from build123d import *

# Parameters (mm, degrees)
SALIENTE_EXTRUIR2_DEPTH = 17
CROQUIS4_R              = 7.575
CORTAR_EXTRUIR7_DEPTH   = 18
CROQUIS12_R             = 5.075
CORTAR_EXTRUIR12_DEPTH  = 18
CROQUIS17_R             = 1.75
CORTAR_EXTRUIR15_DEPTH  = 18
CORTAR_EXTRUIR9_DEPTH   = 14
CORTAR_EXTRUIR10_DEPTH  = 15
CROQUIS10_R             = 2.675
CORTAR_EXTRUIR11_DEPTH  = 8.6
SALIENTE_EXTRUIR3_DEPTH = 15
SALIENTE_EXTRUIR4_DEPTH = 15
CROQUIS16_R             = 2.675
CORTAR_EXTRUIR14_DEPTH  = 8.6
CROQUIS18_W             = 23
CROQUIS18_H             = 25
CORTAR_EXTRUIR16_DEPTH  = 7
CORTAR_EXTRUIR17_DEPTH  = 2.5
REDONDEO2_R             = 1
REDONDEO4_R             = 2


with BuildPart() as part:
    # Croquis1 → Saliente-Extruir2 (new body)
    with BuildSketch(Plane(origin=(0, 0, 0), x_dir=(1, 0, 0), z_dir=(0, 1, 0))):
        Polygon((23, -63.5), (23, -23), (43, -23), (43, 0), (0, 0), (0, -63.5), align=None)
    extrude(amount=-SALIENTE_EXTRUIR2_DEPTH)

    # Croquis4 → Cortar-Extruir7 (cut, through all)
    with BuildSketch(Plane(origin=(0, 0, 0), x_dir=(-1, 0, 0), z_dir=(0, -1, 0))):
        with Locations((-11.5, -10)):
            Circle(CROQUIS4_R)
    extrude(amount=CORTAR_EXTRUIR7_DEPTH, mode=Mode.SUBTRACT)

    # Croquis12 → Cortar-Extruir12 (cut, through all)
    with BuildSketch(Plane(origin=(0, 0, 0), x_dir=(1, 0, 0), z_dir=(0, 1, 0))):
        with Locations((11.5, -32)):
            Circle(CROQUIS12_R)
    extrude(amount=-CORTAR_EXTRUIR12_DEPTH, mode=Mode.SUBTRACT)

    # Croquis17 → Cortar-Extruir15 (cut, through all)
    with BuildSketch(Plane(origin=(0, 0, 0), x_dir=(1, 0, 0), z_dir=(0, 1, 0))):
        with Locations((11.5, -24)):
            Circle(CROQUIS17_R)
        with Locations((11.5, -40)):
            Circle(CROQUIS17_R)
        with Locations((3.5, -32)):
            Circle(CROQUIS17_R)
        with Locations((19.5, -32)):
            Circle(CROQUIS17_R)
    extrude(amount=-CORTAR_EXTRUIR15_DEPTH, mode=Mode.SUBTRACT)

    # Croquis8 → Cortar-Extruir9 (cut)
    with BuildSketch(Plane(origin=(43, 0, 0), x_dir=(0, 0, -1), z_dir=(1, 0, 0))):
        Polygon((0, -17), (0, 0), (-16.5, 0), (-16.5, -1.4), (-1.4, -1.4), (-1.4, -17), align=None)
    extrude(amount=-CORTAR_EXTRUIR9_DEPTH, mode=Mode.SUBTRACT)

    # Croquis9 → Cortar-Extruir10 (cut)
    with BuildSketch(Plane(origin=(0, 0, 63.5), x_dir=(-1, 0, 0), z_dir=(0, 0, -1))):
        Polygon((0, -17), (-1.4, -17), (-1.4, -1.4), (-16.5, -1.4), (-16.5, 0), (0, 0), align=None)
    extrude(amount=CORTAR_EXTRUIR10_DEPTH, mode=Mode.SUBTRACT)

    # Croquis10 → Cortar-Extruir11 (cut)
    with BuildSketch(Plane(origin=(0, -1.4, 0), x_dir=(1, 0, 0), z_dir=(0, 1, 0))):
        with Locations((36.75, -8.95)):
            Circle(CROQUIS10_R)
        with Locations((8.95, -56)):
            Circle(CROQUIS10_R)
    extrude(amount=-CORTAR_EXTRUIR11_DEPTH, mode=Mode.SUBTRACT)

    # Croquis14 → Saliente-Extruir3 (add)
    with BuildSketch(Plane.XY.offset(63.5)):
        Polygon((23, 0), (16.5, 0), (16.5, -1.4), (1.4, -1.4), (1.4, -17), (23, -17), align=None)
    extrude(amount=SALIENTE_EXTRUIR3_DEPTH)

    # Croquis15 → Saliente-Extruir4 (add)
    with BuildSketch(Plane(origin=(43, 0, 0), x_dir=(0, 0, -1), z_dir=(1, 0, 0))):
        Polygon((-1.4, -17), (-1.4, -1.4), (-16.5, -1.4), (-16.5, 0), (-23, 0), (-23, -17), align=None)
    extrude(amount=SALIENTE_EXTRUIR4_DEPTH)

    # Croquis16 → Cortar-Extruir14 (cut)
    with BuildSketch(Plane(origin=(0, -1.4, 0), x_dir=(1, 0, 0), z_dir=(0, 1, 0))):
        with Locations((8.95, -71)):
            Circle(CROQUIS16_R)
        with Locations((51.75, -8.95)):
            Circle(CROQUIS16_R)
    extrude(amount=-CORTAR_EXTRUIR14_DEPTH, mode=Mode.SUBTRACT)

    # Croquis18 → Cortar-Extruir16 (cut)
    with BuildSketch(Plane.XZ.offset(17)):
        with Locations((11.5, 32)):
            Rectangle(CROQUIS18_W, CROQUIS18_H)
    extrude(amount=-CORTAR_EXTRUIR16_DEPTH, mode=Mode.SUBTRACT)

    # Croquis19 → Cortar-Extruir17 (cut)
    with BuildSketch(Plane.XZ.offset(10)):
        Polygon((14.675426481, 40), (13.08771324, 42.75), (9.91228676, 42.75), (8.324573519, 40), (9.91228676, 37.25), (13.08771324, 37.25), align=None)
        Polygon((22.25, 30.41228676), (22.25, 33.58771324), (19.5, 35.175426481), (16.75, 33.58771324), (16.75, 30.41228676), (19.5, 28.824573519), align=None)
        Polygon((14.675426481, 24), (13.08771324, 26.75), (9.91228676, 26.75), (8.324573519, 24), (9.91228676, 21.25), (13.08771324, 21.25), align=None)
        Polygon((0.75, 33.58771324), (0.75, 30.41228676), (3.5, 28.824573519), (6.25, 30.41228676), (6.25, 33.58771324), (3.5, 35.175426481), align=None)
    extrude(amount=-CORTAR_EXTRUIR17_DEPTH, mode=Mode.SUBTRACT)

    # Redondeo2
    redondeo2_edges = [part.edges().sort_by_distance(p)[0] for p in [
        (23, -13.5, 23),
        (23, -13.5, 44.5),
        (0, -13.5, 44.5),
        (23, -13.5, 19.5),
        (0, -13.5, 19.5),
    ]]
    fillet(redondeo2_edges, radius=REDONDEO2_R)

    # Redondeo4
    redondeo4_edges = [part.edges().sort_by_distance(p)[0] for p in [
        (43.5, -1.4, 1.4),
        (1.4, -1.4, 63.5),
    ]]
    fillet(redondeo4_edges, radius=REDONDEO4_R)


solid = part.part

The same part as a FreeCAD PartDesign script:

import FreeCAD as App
import Part
import Sketcher

V = App.Vector
Q = App.Units.Quantity


def edges_at(feature, points):
    """Names of the edges that pass closest to the given points."""
    edges = feature.Shape.Edges
    near = lambda p: min(range(len(edges)), key=lambda i: edges[i].distToShape(Part.Vertex(*p))[0])
    return sorted({f"Edge{near(p) + 1}" for p in points})


def add_polygon(sketch, points):
    """Adds a closed chain of lines whose ends are joined by coincident constraints."""
    first, n = sketch.GeometryCount, len(points)
    for a, b in zip(points, points[1:] + points[:1]):
        sketch.addGeometry(Part.LineSegment(App.Vector(*a, 0), App.Vector(*b, 0)), False)
    for i in range(n):
        sketch.addConstraint(Sketcher.Constraint("Coincident", first + i, 2, first + (i + 1) % n, 1))

doc = App.newDocument("Part")
body = doc.addObject("PartDesign::Body", "Body")

# Sketch on XZ plane
sketch1 = body.newObject("Sketcher::SketchObject", "Sketch")
sketch1.AttachmentSupport = (doc.getObject("XZ_Plane"), [""])
sketch1.MapMode = "FlatFace"
add_polygon(sketch1, [(23, 64), (23, 23), (43, 23), (43, 0), (0, 0), (0, 64)])  # lines 0-5
sketch1.addConstraint(Sketcher.Constraint("Vertical", 0))
sketch1.addConstraint(Sketcher.Constraint("Horizontal", 1))
sketch1.addConstraint(Sketcher.Constraint("Vertical", 2))
sketch1.addConstraint(Sketcher.Constraint("Horizontal", 3))
sketch1.addConstraint(Sketcher.Constraint("Vertical", 4))
sketch1.addConstraint(Sketcher.Constraint("Horizontal", 5))
sketch1.addConstraint(Sketcher.Constraint("Coincident", 3, 2, -1, 1))
sketch1.addConstraint(Sketcher.Constraint("Equal", 5, 2))
sketch1.addConstraint(Sketcher.Constraint("DistanceX", 1, 1, 1, 2, 20.0))
sketch1.addConstraint(Sketcher.Constraint("DistanceX", 3, 2, 3, 1, 43.0))
sketch1.addConstraint(Sketcher.Constraint("DistanceY", 0, 2, 0, 1, 40.5))
pad1 = body.newObject("PartDesign::Pad", "Pad")
pad1.Profile = sketch1
pad1.Length = 17

# Sketch on XZ plane
sketch2 = body.newObject("Sketcher::SketchObject", "Sketch001")
sketch2.AttachmentSupport = (doc.getObject("XZ_Plane"), [""])
sketch2.MapMode = "FlatFace"
sketch2.addGeometry(Part.Circle(V(12, 10, 0), V(0, 0, 1), 8), False)
sketch2.addConstraint(Sketcher.Constraint("Diameter", 0, 15.15))
sketch2.addConstraint(Sketcher.Constraint("DistanceY", -1, 1, 0, 3, 10.0))
sketch2.addConstraint(Sketcher.Constraint("DistanceX", -1, 1, 0, 3, 11.5))
pocket1 = body.newObject("PartDesign::Pocket", "Pocket")
pocket1.Profile = sketch2
pocket1.Type = "ThroughAll"
pocket1.Reversed = True

# Sketch on XZ plane
sketch3 = body.newObject("Sketcher::SketchObject", "Sketch002")
sketch3.AttachmentSupport = (doc.getObject("XZ_Plane"), [""])
sketch3.MapMode = "FlatFace"
sketch3.addGeometry(Part.Circle(V(12, 32, 0), V(0, 0, 1), 5), False)
sketch3.addConstraint(Sketcher.Constraint("Diameter", 0, 10.15))
sketch3.addConstraint(Sketcher.Constraint("DistanceY", -1, 1, 0, 3, 32.0))
sketch3.addConstraint(Sketcher.Constraint("DistanceX", -1, 1, 0, 3, 11.5))
pocket2 = body.newObject("PartDesign::Pocket", "Pocket001")
pocket2.Profile = sketch3
pocket2.Type = "ThroughAll"
pocket2.Reversed = True

# Sketch on XZ plane
sketch4 = body.newObject("Sketcher::SketchObject", "Sketch003")
sketch4.AttachmentSupport = (doc.getObject("XZ_Plane"), [""])
sketch4.MapMode = "FlatFace"
sketch4.addGeometry(Part.Circle(V(11.5, 24, 0), V(0, 0, 1), 1.8), False)
sketch4.addGeometry(Part.Circle(V(11.5, 40, 0), V(0, 0, 1), 1.8), False)
sketch4.addGeometry(Part.Circle(V(3.5, 32, 0), V(0, 0, 1), 1.8), False)
sketch4.addGeometry(Part.Circle(V(19.5, 32, 0), V(0, 0, 1), 1.8), False)
sketch4.addConstraint(Sketcher.Constraint("Equal", 0, 1))
sketch4.addConstraint(Sketcher.Constraint("Equal", 1, 2))
sketch4.addConstraint(Sketcher.Constraint("Equal", 2, 3))
sketch4.addConstraint(Sketcher.Constraint("Horizontal", 2, 3, 3, 3))
sketch4.addConstraint(Sketcher.Constraint("Vertical", 0, 3, 1, 3))
sketch4.addConstraint(Sketcher.Constraint("Diameter", 0, 3.5))
sketch4.addConstraint(Sketcher.Constraint("DistanceY", -1, 1, 0, 3, 24.0))
sketch4.addConstraint(Sketcher.Constraint("DistanceY", -1, 1, 1, 3, 40.0))
sketch4.addConstraint(Sketcher.Constraint("DistanceY", -1, 1, 2, 3, 32.0))
sketch4.addConstraint(Sketcher.Constraint("DistanceX", 2, 3, 0, 3, 8.0))
sketch4.addConstraint(Sketcher.Constraint("DistanceX", 0, 3, 3, 3, 8.0))
sketch4.addConstraint(Sketcher.Constraint("DistanceX", -1, 1, 0, 3, 11.5))
pocket3 = body.newObject("PartDesign::Pocket", "Pocket002")
pocket3.Profile = sketch4
pocket3.Type = "ThroughAll"
pocket3.Reversed = True

# Sketch on YZ plane
sketch5 = body.newObject("Sketcher::SketchObject", "Sketch004")
sketch5.AttachmentSupport = (doc.getObject("YZ_Plane"), [""])
sketch5.MapMode = "FlatFace"
sketch5.AttachmentOffset = App.Placement(V(0, 0, 43), App.Rotation())
add_polygon(sketch5, [(-17, 0), (0, 0), (0, 16.5), (-1.4, 16.5), (-1.4, 1.4), (-17, 1.4)])  # lines 0-5
sketch5.addConstraint(Sketcher.Constraint("Horizontal", 0))
sketch5.addConstraint(Sketcher.Constraint("Vertical", 1))
sketch5.addConstraint(Sketcher.Constraint("Horizontal", 2))
sketch5.addConstraint(Sketcher.Constraint("Vertical", 3))
sketch5.addConstraint(Sketcher.Constraint("Horizontal", 4))
sketch5.addConstraint(Sketcher.Constraint("Vertical", 5))
sketch5.addConstraint(Sketcher.Constraint("Coincident", 0, 2, -1, 1))
sketch5.addConstraint(Sketcher.Constraint("Equal", 2, 5))
sketch5.addConstraint(Sketcher.Constraint("DistanceX", 0, 1, 0, 2, 17.0))
sketch5.addConstraint(Sketcher.Constraint("DistanceX", 2, 2, 2, 1, 1.4))
sketch5.addConstraint(Sketcher.Constraint("DistanceY", 1, 1, 1, 2, 16.5))
pocket4 = body.newObject("PartDesign::Pocket", "Pocket003")
pocket4.Profile = sketch5
pocket4.Length = 14

# Sketch on XY plane
sketch6 = body.newObject("Sketcher::SketchObject", "Sketch005")
sketch6.AttachmentSupport = (doc.getObject("XY_Plane"), [""])
sketch6.MapMode = "FlatFace"
sketch6.AttachmentOffset = App.Placement(V(0, 0, 63.5), App.Rotation())
add_polygon(sketch6, [(1.4, -17), (0, -17), (0, 0), (16.5, 0), (16.5, -1.4), (1.4, -1.4)])  # lines 0-5
sketch6.addConstraint(Sketcher.Constraint("Horizontal", 0))
sketch6.addConstraint(Sketcher.Constraint("Vertical", 1))
sketch6.addConstraint(Sketcher.Constraint("Horizontal", 2))
sketch6.addConstraint(Sketcher.Constraint("Vertical", 3))
sketch6.addConstraint(Sketcher.Constraint("Horizontal", 4))
sketch6.addConstraint(Sketcher.Constraint("Vertical", 5))
sketch6.addConstraint(Sketcher.Constraint("Coincident", 1, 2, -1, 1))
sketch6.addConstraint(Sketcher.Constraint("Equal", 0, 3))
sketch6.addConstraint(Sketcher.Constraint("DistanceY", 1, 1, 1, 2, 17.0))
sketch6.addConstraint(Sketcher.Constraint("DistanceX", 0, 2, 0, 1, 1.4))
sketch6.addConstraint(Sketcher.Constraint("DistanceX", 2, 1, 2, 2, 16.5))
pocket5 = body.newObject("PartDesign::Pocket", "Pocket004")
pocket5.Profile = sketch6
pocket5.Length = 15

# Sketch on XZ plane
sketch7 = body.newObject("Sketcher::SketchObject", "Sketch006")
sketch7.AttachmentSupport = (doc.getObject("XZ_Plane"), [""])
sketch7.MapMode = "FlatFace"
sketch7.AttachmentOffset = App.Placement(V(0, 0, 1.4), App.Rotation())
sketch7.addGeometry(Part.Circle(V(36.8, 8.9, 0), V(0, 0, 1), 2.7), False)
sketch7.addGeometry(Part.Circle(V(8.9, 56, 0), V(0, 0, 1), 2.7), False)
sketch7.addConstraint(Sketcher.Constraint("Equal", 0, 1))
sketch7.addConstraint(Sketcher.Constraint("Diameter", 0, 5.35))
sketch7.addConstraint(Sketcher.Constraint("DistanceY", -1, 1, 1, 3, 56.0))
sketch7.addConstraint(Sketcher.Constraint("DistanceX", 1, 3, 0, 3, 27.8))
sketch7.addConstraint(Sketcher.Constraint("DistanceX", -1, 1, 0, 3, 36.75))
sketch7.addConstraint(Sketcher.Constraint("DistanceY", -1, 1, 0, 3, 8.95))
pocket6 = body.newObject("PartDesign::Pocket", "Pocket005")
pocket6.Profile = sketch7
pocket6.Length = 8.6
pocket6.Reversed = True

# Sketch on XY plane
sketch8 = body.newObject("Sketcher::SketchObject", "Sketch007")
sketch8.AttachmentSupport = (doc.getObject("XY_Plane"), [""])
sketch8.MapMode = "FlatFace"
sketch8.AttachmentOffset = App.Placement(V(0, 0, 63.5), App.Rotation())
add_polygon(sketch8, [(23, 0), (16.5, 0), (16.5, -1.4), (1.4, -1.4), (1.4, -17), (23, -17)])  # lines 0-5
sketch8.addConstraint(Sketcher.Constraint("Horizontal", 0))
sketch8.addConstraint(Sketcher.Constraint("Vertical", 1))
sketch8.addConstraint(Sketcher.Constraint("Horizontal", 2))
sketch8.addConstraint(Sketcher.Constraint("Vertical", 3))
sketch8.addConstraint(Sketcher.Constraint("Horizontal", 4))
sketch8.addConstraint(Sketcher.Constraint("Vertical", 5))
sketch8.addConstraint(Sketcher.Constraint("PointOnObject", 0, 2, -1))
sketch8.addConstraint(Sketcher.Constraint("DistanceY", 5, 1, 5, 2, 17.0))
sketch8.addConstraint(Sketcher.Constraint("DistanceX", 0, 2, 0, 1, 6.5))
sketch8.addConstraint(Sketcher.Constraint("DistanceX", 2, 2, 2, 1, 15.1))
sketch8.addConstraint(Sketcher.Constraint("DistanceY", 1, 2, 1, 1, 1.4))
sketch8.addConstraint(Sketcher.Constraint("DistanceX", -1, 1, 4, 2, 23.0))
pad2 = body.newObject("PartDesign::Pad", "Pad001")
pad2.Profile = sketch8
pad2.Length = 15

# Sketch on YZ plane
sketch9 = body.newObject("Sketcher::SketchObject", "Sketch008")
sketch9.AttachmentSupport = (doc.getObject("YZ_Plane"), [""])
sketch9.MapMode = "FlatFace"
sketch9.AttachmentOffset = App.Placement(V(0, 0, 43), App.Rotation())
add_polygon(sketch9, [(-17, 1.4), (-1.4, 1.4), (-1.4, 16.5), (0, 16.5), (0, 23), (-17, 23)])  # lines 0-5
sketch9.addConstraint(Sketcher.Constraint("Horizontal", 0))
sketch9.addConstraint(Sketcher.Constraint("Vertical", 1))
sketch9.addConstraint(Sketcher.Constraint("Horizontal", 2))
sketch9.addConstraint(Sketcher.Constraint("Vertical", 3))
sketch9.addConstraint(Sketcher.Constraint("Horizontal", 4))
sketch9.addConstraint(Sketcher.Constraint("Vertical", 5))
sketch9.addConstraint(Sketcher.Constraint("PointOnObject", 2, 2, -2))
sketch9.addConstraint(Sketcher.Constraint("DistanceX", 4, 2, 4, 1, 17.0))
sketch9.addConstraint(Sketcher.Constraint("DistanceX", 0, 1, 0, 2, 15.6))
sketch9.addConstraint(Sketcher.Constraint("DistanceY", 1, 1, 1, 2, 15.1))
sketch9.addConstraint(Sketcher.Constraint("DistanceY", 3, 1, 3, 2, 6.5))
sketch9.addConstraint(Sketcher.Constraint("DistanceY", -1, 1, 3, 2, 23.0))
pad3 = body.newObject("PartDesign::Pad", "Pad002")
pad3.Profile = sketch9
pad3.Length = 15

# Sketch on XZ plane
sketch10 = body.newObject("Sketcher::SketchObject", "Sketch009")
sketch10.AttachmentSupport = (doc.getObject("XZ_Plane"), [""])
sketch10.MapMode = "FlatFace"
sketch10.AttachmentOffset = App.Placement(V(0, 0, 1.4), App.Rotation())
sketch10.addGeometry(Part.Circle(V(8.9, 71, 0), V(0, 0, 1), 2.7), False)
sketch10.addGeometry(Part.Circle(V(51.8, 8.9, 0), V(0, 0, 1), 2.7), False)
sketch10.addConstraint(Sketcher.Constraint("Equal", 0, 1))
sketch10.addConstraint(Sketcher.Constraint("Diameter", 0, 5.35))
sketch10.addConstraint(Sketcher.Constraint("DistanceY", -1, 1, 0, 3, 71.0))
sketch10.addConstraint(Sketcher.Constraint("DistanceX", 0, 3, 1, 3, 42.8))
sketch10.addConstraint(Sketcher.Constraint("DistanceX", -1, 1, 0, 3, 8.95))
sketch10.addConstraint(Sketcher.Constraint("DistanceY", -1, 1, 1, 3, 8.95))
pocket7 = body.newObject("PartDesign::Pocket", "Pocket006")
pocket7.Profile = sketch10
pocket7.Length = 8.6
pocket7.Reversed = True

# Sketch on XZ plane
sketch11 = body.newObject("Sketcher::SketchObject", "Sketch010")
sketch11.AttachmentSupport = (doc.getObject("XZ_Plane"), [""])
sketch11.MapMode = "FlatFace"
sketch11.AttachmentOffset = App.Placement(V(0, 0, 17), App.Rotation())
add_polygon(sketch11, [(0, 44), (0, 20), (23, 20), (23, 44)])  # lines 0-3
sketch11.addConstraint(Sketcher.Constraint("Vertical", 0))
sketch11.addConstraint(Sketcher.Constraint("Horizontal", 1))
sketch11.addConstraint(Sketcher.Constraint("Vertical", 2))
sketch11.addConstraint(Sketcher.Constraint("Horizontal", 3))
sketch11.addConstraint(Sketcher.Constraint("PointOnObject", 0, 2, -2))
sketch11.addConstraint(Sketcher.Constraint("DistanceX", 1, 1, 1, 2, 23.0))
sketch11.addConstraint(Sketcher.Constraint("DistanceY", 0, 2, 0, 1, 25.0))
sketch11.addConstraint(Sketcher.Constraint("DistanceY", -1, 1, 0, 2, 19.5))
pocket8 = body.newObject("PartDesign::Pocket", "Pocket007")
pocket8.Profile = sketch11
pocket8.Length = 7

# Sketch on XZ plane
sketch12 = body.newObject("Sketcher::SketchObject", "Sketch011")
sketch12.AttachmentSupport = (doc.getObject("XZ_Plane"), [""])
sketch12.MapMode = "FlatFace"
sketch12.AttachmentOffset = App.Placement(V(0, 0, 10), App.Rotation())
add_polygon(sketch12, [(14.7, 40), (13.1, 42.8), (9.9, 42.8), (8.3, 40), (9.9, 37.2), (13.1, 37.2)])  # lines 0-5
add_polygon(sketch12, [(22.2, 30.4), (22.2, 33.6), (19.5, 35.2), (16.8, 33.6), (16.8, 30.4), (19.5, 28.8)])  # lines 6-11
add_polygon(sketch12, [(14.7, 24), (13.1, 26.8), (9.9, 26.8), (8.3, 24), (9.9, 21.2), (13.1, 21.2)])  # lines 12-17
add_polygon(sketch12, [(0.8, 33.6), (0.8, 30.4), (3.5, 28.8), (6.2, 30.4), (6.2, 33.6), (3.5, 35.2)])  # lines 18-23
sketch12.addConstraint(Sketcher.Constraint("Horizontal", 1))
sketch12.addConstraint(Sketcher.Constraint("Horizontal", 4))
sketch12.addConstraint(Sketcher.Constraint("Vertical", 6))
sketch12.addConstraint(Sketcher.Constraint("Vertical", 9))
sketch12.addConstraint(Sketcher.Constraint("Horizontal", 13))
sketch12.addConstraint(Sketcher.Constraint("Horizontal", 16))
sketch12.addConstraint(Sketcher.Constraint("Vertical", 18))
sketch12.addConstraint(Sketcher.Constraint("Vertical", 21))
sketch12.addConstraint(Sketcher.Constraint("Parallel", 0, 3))
sketch12.addConstraint(Sketcher.Constraint("Parallel", 2, 5))
sketch12.addConstraint(Sketcher.Constraint("Perpendicular", 5, 7))
sketch12.addConstraint(Sketcher.Constraint("Perpendicular", 3, 8))
sketch12.addConstraint(Sketcher.Constraint("Parallel", 7, 10))
sketch12.addConstraint(Sketcher.Constraint("Parallel", 8, 11))
sketch12.addConstraint(Sketcher.Constraint("Perpendicular", 11, 12))
sketch12.addConstraint(Sketcher.Constraint("Perpendicular", 10, 14))
sketch12.addConstraint(Sketcher.Constraint("Parallel", 12, 15))
sketch12.addConstraint(Sketcher.Constraint("Parallel", 14, 17))
sketch12.addConstraint(Sketcher.Constraint("Perpendicular", 17, 19))
sketch12.addConstraint(Sketcher.Constraint("Perpendicular", 15, 20))
sketch12.addConstraint(Sketcher.Constraint("Parallel", 19, 22))
sketch12.addConstraint(Sketcher.Constraint("Parallel", 20, 23))
sketch12.addConstraint(Sketcher.Constraint("Horizontal", 2, 2, 5, 2))
sketch12.addConstraint(Sketcher.Constraint("Horizontal", 6, 2, 8, 2))
sketch12.addConstraint(Sketcher.Constraint("Horizontal", 9, 2, 11, 2))
sketch12.addConstraint(Sketcher.Constraint("Horizontal", 14, 2, 17, 2))
sketch12.addConstraint(Sketcher.Constraint("Horizontal", 11, 2, 18, 2))
sketch12.addConstraint(Sketcher.Constraint("Horizontal", 10, 2, 19, 2))
sketch12.addConstraint(Sketcher.Constraint("Horizontal", 18, 2, 20, 2))
sketch12.addConstraint(Sketcher.Constraint("Horizontal", 8, 2, 21, 2))
sketch12.addConstraint(Sketcher.Constraint("Horizontal", 7, 2, 22, 2))
sketch12.addConstraint(Sketcher.Constraint("Vertical", 1, 2, 3, 2))
sketch12.addConstraint(Sketcher.Constraint("Vertical", 0, 2, 4, 2))
sketch12.addConstraint(Sketcher.Constraint("Vertical", 4, 2, 12, 2))
sketch12.addConstraint(Sketcher.Constraint("Vertical", 3, 2, 13, 2))
sketch12.addConstraint(Sketcher.Constraint("Vertical", 2, 2, 14, 2))
sketch12.addConstraint(Sketcher.Constraint("Vertical", 13, 2, 15, 2))
sketch12.addConstraint(Sketcher.Constraint("Equal", 16, 6))
sketch12.addConstraint(Sketcher.Constraint("Equal", 5, 7))
sketch12.addConstraint(Sketcher.Constraint("Angle", 0, Q("120 deg")))
sketch12.addConstraint(Sketcher.Constraint("DistanceY", -1, 1, 2, 2, 40.0))
sketch12.addConstraint(Sketcher.Constraint("DistanceY", -1, 1, 14, 2, 24.0))
sketch12.addConstraint(Sketcher.Constraint("DistanceX", -1, 1, 7, 2, 19.5))
sketch12.addConstraint(Sketcher.Constraint("DistanceX", -1, 1, 19, 2, 3.5))
sketch12.addConstraint(Sketcher.Constraint("DistanceY", 3, 2, 1, 2, 5.5))
sketch12.addConstraint(Sketcher.Constraint("DistanceX", 1, 2, 1, 1, 3.175426))
sketch12.addConstraint(Sketcher.Constraint("DistanceX", -1, 1, 0, 2, 13.087713))
sketch12.addConstraint(Sketcher.Constraint("DistanceY", -1, 1, 6, 2, 33.587713))
pocket9 = body.newObject("PartDesign::Pocket", "Pocket008")
pocket9.Profile = sketch12
pocket9.Length = 2.5
doc.recompute()

fillet = body.newObject("PartDesign::Fillet", "Fillet")
fillet.Base = (pocket9, edges_at(pocket9, [
    (23, -13.5, 23),
    (23, -13.5, 44.5),
    (0, -13.5, 44.5),
    (23, -13.5, 19.5),
    (0, -13.5, 19.5),
]))
fillet.Radius = 1
doc.recompute()

fillet2 = body.newObject("PartDesign::Fillet", "Fillet001")
fillet2.Base = (fillet, edges_at(fillet, [(43.5, -1.4, 1.4), (1.4, -1.4, 63.5)]))
fillet2.Radius = 2

doc.recompute()
